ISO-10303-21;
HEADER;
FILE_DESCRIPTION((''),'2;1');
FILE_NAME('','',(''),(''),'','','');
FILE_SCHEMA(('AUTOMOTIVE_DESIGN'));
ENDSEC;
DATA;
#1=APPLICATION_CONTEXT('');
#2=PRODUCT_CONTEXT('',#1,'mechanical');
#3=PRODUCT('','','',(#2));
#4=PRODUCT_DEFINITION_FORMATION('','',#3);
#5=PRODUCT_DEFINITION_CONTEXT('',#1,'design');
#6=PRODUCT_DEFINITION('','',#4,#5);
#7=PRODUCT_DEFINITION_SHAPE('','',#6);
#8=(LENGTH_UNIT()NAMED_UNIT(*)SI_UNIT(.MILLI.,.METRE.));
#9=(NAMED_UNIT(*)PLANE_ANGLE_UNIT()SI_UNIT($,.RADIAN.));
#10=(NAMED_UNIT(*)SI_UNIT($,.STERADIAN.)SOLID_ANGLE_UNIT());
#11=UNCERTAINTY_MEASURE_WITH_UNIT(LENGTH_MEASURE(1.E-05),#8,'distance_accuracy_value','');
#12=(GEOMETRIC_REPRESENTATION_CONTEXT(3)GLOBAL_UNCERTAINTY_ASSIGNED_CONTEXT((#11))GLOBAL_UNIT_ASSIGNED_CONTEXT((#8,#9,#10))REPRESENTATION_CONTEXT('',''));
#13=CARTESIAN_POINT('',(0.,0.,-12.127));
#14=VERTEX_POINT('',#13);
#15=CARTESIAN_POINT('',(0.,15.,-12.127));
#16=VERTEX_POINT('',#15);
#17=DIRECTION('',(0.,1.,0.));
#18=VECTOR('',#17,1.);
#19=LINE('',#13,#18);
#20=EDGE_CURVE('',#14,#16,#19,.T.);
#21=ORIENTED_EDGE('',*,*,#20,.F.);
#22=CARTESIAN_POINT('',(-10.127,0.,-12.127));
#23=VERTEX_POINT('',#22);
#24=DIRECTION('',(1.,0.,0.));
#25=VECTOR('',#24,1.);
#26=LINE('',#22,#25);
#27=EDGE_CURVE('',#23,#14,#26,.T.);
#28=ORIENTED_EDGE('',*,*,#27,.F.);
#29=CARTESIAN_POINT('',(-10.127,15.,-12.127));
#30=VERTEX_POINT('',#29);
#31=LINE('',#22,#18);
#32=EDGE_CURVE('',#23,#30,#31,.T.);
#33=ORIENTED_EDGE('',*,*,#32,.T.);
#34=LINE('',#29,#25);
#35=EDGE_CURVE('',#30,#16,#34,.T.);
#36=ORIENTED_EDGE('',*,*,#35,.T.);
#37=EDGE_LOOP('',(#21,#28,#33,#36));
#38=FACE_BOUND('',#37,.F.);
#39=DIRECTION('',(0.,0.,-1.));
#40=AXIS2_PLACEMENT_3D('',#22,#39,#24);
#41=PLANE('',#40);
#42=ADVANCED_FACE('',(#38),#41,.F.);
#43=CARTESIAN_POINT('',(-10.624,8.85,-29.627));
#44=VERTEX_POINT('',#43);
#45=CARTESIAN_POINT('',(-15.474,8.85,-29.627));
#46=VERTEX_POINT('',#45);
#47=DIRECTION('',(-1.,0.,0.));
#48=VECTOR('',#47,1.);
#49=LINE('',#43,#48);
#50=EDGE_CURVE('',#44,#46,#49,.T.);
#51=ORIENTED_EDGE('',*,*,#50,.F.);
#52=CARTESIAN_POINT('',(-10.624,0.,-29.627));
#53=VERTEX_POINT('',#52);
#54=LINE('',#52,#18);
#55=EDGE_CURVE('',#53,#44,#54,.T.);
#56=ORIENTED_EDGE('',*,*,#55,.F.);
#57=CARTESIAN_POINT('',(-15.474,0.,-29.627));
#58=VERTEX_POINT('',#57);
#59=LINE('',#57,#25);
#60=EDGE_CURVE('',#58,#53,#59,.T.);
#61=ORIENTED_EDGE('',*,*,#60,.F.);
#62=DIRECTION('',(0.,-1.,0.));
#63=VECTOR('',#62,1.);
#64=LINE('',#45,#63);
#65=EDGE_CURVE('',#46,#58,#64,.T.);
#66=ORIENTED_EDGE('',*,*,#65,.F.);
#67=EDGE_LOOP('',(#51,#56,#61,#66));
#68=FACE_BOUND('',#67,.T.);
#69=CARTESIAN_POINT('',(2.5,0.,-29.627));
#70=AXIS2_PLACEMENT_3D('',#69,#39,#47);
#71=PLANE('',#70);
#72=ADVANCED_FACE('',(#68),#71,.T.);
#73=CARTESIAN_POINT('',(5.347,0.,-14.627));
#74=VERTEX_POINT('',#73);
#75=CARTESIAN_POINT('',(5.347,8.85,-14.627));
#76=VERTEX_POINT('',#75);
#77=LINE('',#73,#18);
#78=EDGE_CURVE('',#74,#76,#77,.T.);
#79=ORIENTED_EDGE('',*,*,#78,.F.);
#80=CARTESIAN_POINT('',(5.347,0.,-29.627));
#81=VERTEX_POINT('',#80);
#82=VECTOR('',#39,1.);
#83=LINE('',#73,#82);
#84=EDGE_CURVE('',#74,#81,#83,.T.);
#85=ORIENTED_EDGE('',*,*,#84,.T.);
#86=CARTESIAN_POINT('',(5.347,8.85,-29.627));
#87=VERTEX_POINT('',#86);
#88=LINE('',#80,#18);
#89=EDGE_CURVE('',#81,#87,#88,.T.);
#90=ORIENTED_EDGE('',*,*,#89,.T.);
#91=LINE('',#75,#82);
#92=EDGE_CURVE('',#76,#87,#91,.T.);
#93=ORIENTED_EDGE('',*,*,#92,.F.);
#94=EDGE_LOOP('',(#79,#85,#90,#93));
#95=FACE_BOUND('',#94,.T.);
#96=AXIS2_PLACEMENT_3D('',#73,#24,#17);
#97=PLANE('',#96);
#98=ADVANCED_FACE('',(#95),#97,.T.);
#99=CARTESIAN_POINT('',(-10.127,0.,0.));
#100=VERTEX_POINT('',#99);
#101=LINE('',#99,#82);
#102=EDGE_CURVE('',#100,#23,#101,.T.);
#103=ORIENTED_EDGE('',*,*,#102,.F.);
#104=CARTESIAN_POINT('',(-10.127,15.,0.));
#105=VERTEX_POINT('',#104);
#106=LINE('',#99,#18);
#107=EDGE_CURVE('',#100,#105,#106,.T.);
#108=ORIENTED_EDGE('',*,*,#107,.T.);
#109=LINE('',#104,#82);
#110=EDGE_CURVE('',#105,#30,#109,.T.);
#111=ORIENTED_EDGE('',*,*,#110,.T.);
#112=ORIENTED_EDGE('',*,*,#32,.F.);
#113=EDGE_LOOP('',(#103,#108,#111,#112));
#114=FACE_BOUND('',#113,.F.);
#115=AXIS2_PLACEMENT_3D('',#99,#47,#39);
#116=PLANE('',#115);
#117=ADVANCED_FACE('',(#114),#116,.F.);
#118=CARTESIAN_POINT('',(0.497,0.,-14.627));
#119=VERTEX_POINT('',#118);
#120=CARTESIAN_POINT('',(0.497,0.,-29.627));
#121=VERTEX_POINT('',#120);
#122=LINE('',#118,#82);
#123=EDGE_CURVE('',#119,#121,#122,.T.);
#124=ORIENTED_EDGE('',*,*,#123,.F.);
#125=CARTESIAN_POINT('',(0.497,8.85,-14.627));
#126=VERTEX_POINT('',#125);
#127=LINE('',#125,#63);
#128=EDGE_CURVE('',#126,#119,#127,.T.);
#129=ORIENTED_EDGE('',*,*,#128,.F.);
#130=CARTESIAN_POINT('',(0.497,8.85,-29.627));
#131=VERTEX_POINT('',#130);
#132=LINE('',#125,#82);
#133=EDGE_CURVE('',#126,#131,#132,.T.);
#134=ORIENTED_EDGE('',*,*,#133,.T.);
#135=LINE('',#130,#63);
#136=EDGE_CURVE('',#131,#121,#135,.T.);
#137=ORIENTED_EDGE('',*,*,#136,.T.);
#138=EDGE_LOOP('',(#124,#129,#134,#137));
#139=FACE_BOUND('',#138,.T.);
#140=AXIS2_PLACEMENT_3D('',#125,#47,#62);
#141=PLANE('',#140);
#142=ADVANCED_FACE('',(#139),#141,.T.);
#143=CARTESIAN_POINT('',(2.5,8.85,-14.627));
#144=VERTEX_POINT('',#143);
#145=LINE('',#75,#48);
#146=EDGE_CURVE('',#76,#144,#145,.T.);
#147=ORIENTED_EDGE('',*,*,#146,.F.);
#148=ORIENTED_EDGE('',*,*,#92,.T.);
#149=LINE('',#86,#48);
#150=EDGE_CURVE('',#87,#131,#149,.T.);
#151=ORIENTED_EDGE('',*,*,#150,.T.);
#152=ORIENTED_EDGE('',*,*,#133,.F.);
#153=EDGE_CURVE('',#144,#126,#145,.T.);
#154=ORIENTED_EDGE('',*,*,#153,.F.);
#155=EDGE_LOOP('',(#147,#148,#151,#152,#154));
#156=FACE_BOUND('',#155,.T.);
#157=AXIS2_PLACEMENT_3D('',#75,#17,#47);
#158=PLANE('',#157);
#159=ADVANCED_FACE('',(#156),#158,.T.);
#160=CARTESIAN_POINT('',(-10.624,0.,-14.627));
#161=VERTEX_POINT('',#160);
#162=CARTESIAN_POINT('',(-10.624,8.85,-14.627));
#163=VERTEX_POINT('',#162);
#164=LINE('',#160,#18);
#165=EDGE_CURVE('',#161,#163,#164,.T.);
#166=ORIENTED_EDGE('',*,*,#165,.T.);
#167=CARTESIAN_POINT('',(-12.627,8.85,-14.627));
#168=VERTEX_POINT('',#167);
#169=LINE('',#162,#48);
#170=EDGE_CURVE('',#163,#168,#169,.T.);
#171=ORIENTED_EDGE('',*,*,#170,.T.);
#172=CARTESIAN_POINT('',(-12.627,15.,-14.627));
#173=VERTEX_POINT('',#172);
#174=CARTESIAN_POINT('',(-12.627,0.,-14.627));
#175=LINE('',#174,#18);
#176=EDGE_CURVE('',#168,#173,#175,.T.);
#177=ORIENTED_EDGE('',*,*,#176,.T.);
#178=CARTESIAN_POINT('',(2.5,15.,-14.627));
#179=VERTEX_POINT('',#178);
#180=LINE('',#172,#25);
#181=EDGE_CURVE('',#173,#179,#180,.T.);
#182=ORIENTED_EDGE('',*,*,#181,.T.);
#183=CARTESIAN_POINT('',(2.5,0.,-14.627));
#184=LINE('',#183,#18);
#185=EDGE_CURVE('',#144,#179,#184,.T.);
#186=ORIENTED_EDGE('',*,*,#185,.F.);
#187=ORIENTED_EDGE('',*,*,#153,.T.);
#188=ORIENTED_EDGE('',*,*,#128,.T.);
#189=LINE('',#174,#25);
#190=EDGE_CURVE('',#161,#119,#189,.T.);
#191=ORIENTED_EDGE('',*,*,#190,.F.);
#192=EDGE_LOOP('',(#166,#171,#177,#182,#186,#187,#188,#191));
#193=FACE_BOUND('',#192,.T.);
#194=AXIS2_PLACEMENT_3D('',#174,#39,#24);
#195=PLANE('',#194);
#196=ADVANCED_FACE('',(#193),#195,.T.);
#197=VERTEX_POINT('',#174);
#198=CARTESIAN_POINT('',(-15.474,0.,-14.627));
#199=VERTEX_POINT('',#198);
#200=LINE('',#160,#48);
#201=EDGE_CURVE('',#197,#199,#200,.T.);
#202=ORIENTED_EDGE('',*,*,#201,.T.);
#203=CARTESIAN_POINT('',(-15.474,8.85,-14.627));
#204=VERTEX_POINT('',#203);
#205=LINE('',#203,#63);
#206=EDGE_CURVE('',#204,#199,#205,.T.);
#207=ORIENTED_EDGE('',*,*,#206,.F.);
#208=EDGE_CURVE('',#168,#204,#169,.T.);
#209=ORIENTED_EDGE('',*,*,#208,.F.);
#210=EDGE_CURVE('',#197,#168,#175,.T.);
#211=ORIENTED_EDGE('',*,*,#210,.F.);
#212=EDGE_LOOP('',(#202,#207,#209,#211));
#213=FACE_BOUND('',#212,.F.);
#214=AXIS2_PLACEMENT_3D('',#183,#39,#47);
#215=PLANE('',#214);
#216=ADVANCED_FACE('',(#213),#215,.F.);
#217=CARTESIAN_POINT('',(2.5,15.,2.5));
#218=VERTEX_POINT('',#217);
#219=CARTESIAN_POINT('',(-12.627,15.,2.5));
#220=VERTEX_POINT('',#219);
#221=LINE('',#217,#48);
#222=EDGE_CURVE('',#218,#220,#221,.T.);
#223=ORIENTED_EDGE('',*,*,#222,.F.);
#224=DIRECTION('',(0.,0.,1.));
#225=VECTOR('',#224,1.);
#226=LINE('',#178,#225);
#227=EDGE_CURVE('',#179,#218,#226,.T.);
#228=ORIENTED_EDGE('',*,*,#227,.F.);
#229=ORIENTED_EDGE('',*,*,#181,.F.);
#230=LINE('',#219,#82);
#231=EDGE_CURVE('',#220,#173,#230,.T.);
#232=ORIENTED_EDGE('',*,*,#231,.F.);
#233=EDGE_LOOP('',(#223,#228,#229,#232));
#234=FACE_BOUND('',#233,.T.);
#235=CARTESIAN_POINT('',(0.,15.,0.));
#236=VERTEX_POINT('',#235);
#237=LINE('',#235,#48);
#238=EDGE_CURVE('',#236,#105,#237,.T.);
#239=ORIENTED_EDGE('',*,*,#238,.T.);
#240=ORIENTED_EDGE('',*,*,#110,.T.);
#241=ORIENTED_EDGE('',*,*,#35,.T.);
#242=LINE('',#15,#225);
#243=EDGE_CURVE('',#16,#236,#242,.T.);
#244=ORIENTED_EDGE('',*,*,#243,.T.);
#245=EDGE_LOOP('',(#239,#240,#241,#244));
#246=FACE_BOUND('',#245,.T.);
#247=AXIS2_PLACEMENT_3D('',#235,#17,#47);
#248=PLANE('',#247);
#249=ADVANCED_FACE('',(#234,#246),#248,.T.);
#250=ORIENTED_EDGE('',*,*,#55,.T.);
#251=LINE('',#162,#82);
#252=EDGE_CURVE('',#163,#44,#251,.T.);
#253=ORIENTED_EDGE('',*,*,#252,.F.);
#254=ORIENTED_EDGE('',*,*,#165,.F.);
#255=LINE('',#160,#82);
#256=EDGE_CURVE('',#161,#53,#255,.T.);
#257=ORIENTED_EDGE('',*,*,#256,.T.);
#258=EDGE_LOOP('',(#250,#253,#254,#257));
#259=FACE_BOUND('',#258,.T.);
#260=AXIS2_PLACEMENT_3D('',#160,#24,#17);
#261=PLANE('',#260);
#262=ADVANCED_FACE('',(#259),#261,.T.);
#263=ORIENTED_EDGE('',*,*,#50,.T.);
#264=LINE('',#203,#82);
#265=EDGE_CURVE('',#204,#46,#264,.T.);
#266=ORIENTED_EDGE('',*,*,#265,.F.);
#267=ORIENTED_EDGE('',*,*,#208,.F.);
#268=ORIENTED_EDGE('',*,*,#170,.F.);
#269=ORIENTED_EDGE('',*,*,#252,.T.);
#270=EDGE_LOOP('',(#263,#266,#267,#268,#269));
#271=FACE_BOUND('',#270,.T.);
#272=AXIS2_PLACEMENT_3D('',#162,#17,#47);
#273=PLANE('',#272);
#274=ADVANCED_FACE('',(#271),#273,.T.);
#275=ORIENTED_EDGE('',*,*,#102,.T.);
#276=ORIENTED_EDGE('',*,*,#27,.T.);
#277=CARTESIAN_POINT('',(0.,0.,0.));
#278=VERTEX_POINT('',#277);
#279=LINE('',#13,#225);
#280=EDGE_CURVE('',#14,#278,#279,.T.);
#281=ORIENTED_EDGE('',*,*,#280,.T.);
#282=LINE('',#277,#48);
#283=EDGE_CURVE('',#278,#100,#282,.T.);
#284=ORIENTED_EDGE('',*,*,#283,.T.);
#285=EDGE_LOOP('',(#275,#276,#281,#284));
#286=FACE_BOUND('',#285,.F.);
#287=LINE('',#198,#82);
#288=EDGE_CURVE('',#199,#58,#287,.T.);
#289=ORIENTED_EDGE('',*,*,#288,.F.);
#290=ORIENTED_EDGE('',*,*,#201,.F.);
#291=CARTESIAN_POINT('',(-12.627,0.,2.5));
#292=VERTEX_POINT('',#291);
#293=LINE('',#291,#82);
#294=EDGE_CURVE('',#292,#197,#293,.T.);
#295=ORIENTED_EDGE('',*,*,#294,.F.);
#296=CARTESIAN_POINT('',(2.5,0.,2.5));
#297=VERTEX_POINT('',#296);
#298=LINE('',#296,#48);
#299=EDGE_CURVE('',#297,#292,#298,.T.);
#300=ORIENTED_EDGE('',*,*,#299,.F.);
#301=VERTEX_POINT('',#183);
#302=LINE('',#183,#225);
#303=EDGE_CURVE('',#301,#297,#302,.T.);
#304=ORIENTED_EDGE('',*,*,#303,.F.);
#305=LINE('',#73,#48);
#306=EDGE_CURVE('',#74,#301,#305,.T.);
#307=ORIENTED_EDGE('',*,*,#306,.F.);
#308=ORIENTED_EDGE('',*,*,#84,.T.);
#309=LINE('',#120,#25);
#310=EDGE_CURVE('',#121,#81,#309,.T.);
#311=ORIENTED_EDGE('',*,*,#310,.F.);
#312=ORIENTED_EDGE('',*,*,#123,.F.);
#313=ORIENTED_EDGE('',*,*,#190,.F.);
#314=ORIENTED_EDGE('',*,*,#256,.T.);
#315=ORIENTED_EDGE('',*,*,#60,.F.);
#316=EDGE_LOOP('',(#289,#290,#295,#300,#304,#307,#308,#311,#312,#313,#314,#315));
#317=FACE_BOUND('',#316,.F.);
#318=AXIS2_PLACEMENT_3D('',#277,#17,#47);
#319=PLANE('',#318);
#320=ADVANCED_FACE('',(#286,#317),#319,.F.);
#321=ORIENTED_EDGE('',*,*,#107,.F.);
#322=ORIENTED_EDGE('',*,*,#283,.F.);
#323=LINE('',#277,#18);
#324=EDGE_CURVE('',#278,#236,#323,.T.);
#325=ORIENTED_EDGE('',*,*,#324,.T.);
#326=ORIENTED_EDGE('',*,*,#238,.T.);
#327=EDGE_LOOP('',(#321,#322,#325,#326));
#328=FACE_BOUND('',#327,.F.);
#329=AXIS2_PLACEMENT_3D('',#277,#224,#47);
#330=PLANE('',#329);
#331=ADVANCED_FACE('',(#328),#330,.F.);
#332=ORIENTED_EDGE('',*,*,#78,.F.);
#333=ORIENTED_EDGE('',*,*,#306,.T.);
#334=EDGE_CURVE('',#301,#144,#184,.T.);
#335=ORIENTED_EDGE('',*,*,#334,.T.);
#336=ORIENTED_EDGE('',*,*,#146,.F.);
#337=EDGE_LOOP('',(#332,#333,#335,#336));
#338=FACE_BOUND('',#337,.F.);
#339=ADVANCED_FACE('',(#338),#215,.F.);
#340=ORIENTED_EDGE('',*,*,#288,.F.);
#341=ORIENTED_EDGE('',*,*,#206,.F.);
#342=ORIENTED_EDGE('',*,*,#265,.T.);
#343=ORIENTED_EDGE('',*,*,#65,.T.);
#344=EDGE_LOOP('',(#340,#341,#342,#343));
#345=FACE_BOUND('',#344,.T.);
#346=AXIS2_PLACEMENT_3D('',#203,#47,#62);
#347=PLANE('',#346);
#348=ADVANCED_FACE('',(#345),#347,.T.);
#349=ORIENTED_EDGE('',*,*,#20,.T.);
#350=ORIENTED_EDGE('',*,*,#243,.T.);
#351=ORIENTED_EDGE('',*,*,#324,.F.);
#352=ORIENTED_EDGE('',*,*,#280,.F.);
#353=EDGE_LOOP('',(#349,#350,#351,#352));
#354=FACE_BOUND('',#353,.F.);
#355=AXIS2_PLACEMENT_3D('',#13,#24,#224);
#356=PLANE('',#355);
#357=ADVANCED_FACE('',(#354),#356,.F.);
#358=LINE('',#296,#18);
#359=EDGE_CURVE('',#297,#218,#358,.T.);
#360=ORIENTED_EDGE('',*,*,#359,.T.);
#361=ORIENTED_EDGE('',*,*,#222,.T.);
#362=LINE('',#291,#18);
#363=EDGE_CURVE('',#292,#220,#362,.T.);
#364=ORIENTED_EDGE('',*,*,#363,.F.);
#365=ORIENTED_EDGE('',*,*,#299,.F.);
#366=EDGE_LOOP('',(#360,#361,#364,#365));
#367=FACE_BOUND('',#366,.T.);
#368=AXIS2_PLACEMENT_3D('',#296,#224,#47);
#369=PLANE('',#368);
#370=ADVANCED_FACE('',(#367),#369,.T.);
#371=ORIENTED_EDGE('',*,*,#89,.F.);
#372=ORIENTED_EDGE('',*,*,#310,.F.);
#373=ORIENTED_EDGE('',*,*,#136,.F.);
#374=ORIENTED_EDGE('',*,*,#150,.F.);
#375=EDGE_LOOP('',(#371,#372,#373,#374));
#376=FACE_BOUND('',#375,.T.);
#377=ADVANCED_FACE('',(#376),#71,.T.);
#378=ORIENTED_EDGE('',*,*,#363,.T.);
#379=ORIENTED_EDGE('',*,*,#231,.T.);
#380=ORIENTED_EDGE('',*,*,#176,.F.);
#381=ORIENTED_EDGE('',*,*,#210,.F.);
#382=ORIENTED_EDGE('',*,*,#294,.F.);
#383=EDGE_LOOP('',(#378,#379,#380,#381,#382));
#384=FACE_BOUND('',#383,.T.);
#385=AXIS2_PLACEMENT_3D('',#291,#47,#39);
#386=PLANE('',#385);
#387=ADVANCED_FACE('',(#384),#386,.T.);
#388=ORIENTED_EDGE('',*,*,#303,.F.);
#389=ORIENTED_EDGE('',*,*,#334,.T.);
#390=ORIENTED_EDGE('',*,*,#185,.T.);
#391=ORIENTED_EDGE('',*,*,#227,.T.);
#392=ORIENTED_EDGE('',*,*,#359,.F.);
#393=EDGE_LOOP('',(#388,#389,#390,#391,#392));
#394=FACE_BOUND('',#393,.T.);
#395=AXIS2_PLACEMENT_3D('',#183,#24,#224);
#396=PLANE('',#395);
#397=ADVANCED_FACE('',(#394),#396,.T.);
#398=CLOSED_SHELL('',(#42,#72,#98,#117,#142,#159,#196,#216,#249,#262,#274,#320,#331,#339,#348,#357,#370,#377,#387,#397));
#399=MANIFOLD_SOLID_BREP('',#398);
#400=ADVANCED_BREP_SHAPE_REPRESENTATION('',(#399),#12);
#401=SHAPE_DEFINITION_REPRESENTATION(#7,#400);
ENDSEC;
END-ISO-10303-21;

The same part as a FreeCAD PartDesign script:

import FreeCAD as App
import Part
import Sketcher

V = App.Vector
Q = App.Units.Quantity


def add_polygon(sketch, points):
    """Adds a closed chain of lines whose ends are joined by coincident constraints."""
    first, n = sketch.GeometryCount, len(points)
    for a, b in zip(points, points[1:] + points[:1]):
        sketch.addGeometry(Part.LineSegment(App.Vector(*a, 0), App.Vector(*b, 0)), False)
    for i in range(n):
        sketch.addConstraint(Sketcher.Constraint("Coincident", first + i, 2, first + (i + 1) % n, 1))

doc = App.newDocument("Part")
body = doc.addObject("PartDesign::Body", "Body")

# Sketch on XZ plane
sketch1 = body.newObject("Sketcher::SketchObject", "Sketch")
sketch1.AttachmentSupport = (doc.getObject("XZ_Plane"), [""])
sketch1.MapMode = "FlatFace"
add_polygon(sketch1, [(-13, 2), (2, 2), (2, -15), (-13, -15)])  # lines 0-3
add_polygon(sketch1, [(0, -12), (0, 0), (-10, 0), (-10, -12)])  # lines 4-7
sketch1.addConstraint(Sketcher.Constraint("Horizontal", 0))
sketch1.addConstraint(Sketcher.Constraint("Vertical", 1))
sketch1.addConstraint(Sketcher.Constraint("Horizontal", 2))
sketch1.addConstraint(Sketcher.Constraint("Vertical", 3))
sketch1.addConstraint(Sketcher.Constraint("Vertical", 4))
sketch1.addConstraint(Sketcher.Constraint("Horizontal", 5))
sketch1.addConstraint(Sketcher.Constraint("Vertical", 6))
sketch1.addConstraint(Sketcher.Constraint("Horizontal", 7))
sketch1.addConstraint(Sketcher.Constraint("Coincident", 4, 2, -1, 1))
sketch1.addConstraint(Sketcher.Constraint("DistanceX", -1, 1, 0, 2, Q("2.5 mm")))
sketch1.addConstraint(Sketcher.Constraint("DistanceY", -1, 1, 0, 2, Q("2.5 mm")))
sketch1.addConstraint(Sketcher.Constraint("DistanceX", 3, 2, 5, 2, Q("2.5 mm")))
sketch1.addConstraint(Sketcher.Constraint("DistanceY", 2, 2, 6, 2, Q("2.5 mm")))
sketch1.addConstraint(Sketcher.Constraint("DistanceX", 5, 2, 5, 1, Q("10.127 mm")))
sketch1.addConstraint(Sketcher.Constraint("DistanceY", 4, 1, 4, 2, Q("12.127 mm")))
pad1 = body.newObject("PartDesign::Pad", "Pad")
pad1.Profile = sketch1
pad1.Length = 15
pad1.Reversed = True

# Sketch on XY plane
sketch2 = body.newObject("Sketcher::SketchObject", "Sketch001")
sketch2.AttachmentSupport = (doc.getObject("XY_Plane"), [""])
sketch2.MapMode = "FlatFace"
sketch2.AttachmentOffset = App.Placement(V(0, 0, -14.627), App.Rotation())
add_polygon(sketch2, [(5.3, 0), (0.5, 0), (0.5, 8.8), (5.3, 8.8)])  # lines 0-3
add_polygon(sketch2, [(-10.6, 0), (-15.5, 0), (-15.5, 8.8), (-10.6, 8.8)])  # lines 4-7
sketch2.addConstraint(Sketcher.Constraint("Horizontal", 0))
sketch2.addConstraint(Sketcher.Constraint("Vertical", 1))
sketch2.addConstraint(Sketcher.Constraint("Horizontal", 2))
sketch2.addConstraint(Sketcher.Constraint("Vertical", 3))
sketch2.addConstraint(Sketcher.Constraint("Horizontal", 4))
sketch2.addConstraint(Sketcher.Constraint("Vertical", 5))
sketch2.addConstraint(Sketcher.Constraint("Horizontal", 6))
sketch2.addConstraint(Sketcher.Constraint("Vertical", 7))
sketch2.addConstraint(Sketcher.Constraint("PointOnObject", 0, 2, -1))
sketch2.addConstraint(Sketcher.Constraint("PointOnObject", 4, 2, -1))
sketch2.addConstraint(Sketcher.Constraint("Horizontal", 2, 2, 5, 2))
sketch2.addConstraint(Sketcher.Constraint("Equal", 2, 4))
sketch2.addConstraint(Sketcher.Constraint("DistanceX", 0, 2, 0, 1, Q("4.85 mm")))
sketch2.addConstraint(Sketcher.Constraint("DistanceY", 1, 1, 1, 2, Q("8.85 mm")))
sketch2.addConstraint(Sketcher.Constraint("DistanceX", 6, 2, 1, 2, Q("11.121 mm")))
sketch2.addConstraint(Sketcher.Constraint("DistanceX", -1, 1, 0, 2, Q("0.497 mm")))
pad2 = body.newObject("PartDesign::Pad", "Pad001")
pad2.Profile = sketch2
pad2.Length = 15
pad2.Reversed = True

doc.recompute()
